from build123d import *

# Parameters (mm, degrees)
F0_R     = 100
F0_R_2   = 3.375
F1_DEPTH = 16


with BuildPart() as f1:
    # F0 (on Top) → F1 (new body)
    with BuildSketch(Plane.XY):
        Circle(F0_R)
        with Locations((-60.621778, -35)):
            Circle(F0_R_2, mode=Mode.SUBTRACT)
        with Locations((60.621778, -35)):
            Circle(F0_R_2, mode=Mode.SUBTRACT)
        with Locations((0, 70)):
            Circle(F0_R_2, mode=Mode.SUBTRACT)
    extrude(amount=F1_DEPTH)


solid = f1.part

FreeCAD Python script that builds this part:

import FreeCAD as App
import Part
import Sketcher
Q = App.Units.Quantity

doc = App.newDocument("Part")
body = doc.addObject("PartDesign::Body", "Body")

# Sketch on XY plane
sketch1 = body.newObject("Sketcher::SketchObject", "Sketch")
sketch1.AttachmentSupport = (doc.getObject("XY_Plane"), [""])
sketch1.MapMode = "FlatFace"
sketch1.addGeometry([
    Part.Circle(App.Vector(0, 0, 0), App.Vector(0, 0, 1), 100),
    Part.Circle(App.Vector(-60.621778, -35, 0), App.Vector(0, 0, 1), 3.375),
    Part.Circle(App.Vector(60.621778, -35, 0), App.Vector(0, 0, 1), 3.375),
    Part.Circle(App.Vector(0, 70, 0), App.Vector(0, 0, 1), 3.375),
], False)
sketch1.addConstraint([
    Sketcher.Constraint("Coincident", 0, 3, -1, 1),
    Sketcher.Constraint("Equal", 1, 2),
    Sketcher.Constraint("Equal", 2, 3),
    Sketcher.Constraint("Symmetric", 1, 3, 2, 3, -2),
    Sketcher.Constraint("PointOnObject", 3, 3, -2),
    Sketcher.Constraint("Diameter", 0, Q("200 mm")),
    Sketcher.Constraint("Diameter", 1, Q("6.75 mm")),
    Sketcher.Constraint("DistanceY", 1, 3, -1, 1, Q("35 mm")),
    Sketcher.Constraint("DistanceY", -1, 1, 3, 3, Q("70 mm")),
    Sketcher.Constraint("DistanceX", 1, 3, -1, 1, Q("60.621778 mm")),
])
pad1 = body.newObject("PartDesign::Pad", "Pad")
pad1.Profile = sketch1
pad1.Length = 16

doc.recompute()
